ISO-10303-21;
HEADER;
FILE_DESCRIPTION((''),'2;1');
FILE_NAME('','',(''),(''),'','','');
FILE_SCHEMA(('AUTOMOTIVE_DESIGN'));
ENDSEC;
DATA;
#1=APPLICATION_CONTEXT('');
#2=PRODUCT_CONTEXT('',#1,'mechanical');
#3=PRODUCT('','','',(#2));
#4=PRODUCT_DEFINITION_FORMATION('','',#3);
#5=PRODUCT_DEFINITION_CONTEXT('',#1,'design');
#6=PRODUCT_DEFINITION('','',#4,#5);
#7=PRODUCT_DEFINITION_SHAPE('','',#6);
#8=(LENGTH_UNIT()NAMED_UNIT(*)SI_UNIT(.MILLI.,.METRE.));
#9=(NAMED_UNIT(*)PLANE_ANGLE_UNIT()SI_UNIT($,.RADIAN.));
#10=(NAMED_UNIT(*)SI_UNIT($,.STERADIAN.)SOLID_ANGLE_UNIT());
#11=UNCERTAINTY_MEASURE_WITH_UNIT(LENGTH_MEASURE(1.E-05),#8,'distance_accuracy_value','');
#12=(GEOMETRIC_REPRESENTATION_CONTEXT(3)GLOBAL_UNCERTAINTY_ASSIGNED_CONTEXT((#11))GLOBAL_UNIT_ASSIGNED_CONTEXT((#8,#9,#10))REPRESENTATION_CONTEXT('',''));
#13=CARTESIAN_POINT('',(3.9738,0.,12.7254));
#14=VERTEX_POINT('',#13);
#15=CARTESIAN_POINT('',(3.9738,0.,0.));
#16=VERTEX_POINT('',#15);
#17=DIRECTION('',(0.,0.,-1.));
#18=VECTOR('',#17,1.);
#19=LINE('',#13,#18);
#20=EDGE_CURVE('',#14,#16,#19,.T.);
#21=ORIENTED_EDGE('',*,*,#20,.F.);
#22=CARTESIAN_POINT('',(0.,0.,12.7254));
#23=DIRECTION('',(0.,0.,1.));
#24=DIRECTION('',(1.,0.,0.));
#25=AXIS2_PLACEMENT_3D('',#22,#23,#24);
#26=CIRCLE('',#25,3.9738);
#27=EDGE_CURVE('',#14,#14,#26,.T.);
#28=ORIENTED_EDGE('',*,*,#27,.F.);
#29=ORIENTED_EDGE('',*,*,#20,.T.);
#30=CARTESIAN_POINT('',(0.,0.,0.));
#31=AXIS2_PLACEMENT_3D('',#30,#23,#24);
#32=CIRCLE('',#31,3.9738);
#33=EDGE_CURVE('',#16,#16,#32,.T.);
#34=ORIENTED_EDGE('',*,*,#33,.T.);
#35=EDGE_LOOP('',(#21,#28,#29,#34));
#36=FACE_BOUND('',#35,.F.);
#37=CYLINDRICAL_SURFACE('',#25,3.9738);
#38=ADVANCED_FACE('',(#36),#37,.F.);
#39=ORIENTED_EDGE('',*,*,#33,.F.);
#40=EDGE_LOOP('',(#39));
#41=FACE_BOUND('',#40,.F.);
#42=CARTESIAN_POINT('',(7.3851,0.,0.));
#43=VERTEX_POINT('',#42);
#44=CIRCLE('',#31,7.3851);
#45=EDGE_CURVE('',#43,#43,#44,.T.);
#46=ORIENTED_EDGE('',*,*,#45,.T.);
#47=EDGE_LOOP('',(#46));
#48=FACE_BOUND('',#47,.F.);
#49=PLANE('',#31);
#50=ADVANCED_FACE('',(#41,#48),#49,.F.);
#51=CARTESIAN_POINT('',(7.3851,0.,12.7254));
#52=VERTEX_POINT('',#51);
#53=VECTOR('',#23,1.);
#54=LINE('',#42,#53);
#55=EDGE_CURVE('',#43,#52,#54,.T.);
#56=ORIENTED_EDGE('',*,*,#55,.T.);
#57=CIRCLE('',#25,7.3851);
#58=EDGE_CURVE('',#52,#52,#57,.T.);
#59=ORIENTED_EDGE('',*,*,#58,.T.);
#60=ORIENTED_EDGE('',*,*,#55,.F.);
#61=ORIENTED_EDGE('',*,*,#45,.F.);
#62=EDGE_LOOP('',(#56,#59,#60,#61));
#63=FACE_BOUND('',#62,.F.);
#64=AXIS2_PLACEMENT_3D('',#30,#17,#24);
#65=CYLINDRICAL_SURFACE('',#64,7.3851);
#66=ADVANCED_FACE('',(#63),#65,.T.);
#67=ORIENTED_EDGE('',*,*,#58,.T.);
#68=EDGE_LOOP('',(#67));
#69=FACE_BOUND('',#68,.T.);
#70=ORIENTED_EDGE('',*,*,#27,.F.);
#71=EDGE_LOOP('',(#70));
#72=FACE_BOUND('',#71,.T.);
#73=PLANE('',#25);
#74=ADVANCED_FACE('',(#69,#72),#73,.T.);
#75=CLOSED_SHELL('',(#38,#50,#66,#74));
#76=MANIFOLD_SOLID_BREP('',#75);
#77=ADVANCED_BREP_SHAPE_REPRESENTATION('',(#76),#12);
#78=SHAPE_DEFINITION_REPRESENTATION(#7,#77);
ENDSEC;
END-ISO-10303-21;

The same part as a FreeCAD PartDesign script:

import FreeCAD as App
import Part
import Sketcher

V = App.Vector
Q = App.Units.Quantity

doc = App.newDocument("Part")
body = doc.addObject("PartDesign::Body", "Body")

# Sketch on XY plane
sketch1 = body.newObject("Sketcher::SketchObject", "Sketch")
sketch1.AttachmentSupport = (doc.getObject("XY_Plane"), [""])
sketch1.MapMode = "FlatFace"
sketch1.addGeometry(Part.Circle(V(0, 0, 0), V(0, 0, 1), 7), False)
sketch1.addConstraint([
    Sketcher.Constraint("Coincident", 0, 3, -1, 1),
    Sketcher.Constraint("Diameter", 0, Q("0.5815 in")),
])
pad1 = body.newObject("PartDesign::Pad", "Pad")
pad1.Profile = sketch1
pad1.Length = Q("0.501 in")

# Sketch on XY plane
sketch2 = body.newObject("Sketcher::SketchObject", "Sketch001")
sketch2.AttachmentSupport = (doc.getObject("XY_Plane"), [""])
sketch2.MapMode = "FlatFace"
sketch2.AttachmentOffset = App.Placement(V(0, 0, 0.501 * 25.4), App.Rotation())
sketch2.addGeometry(Part.Circle(V(0, 0, 0), V(0, 0, 1), 4), False)
sketch2.addConstraint([
    Sketcher.Constraint("Coincident", 0, 3, -1, 1),
    Sketcher.Constraint("Diameter", 0, Q("0.3129 in")),
])
pocket1 = body.newObject("PartDesign::Pocket", "Pocket")
pocket1.Profile = sketch2
pocket1.Length = Q("0.501 in")

doc.recompute()
